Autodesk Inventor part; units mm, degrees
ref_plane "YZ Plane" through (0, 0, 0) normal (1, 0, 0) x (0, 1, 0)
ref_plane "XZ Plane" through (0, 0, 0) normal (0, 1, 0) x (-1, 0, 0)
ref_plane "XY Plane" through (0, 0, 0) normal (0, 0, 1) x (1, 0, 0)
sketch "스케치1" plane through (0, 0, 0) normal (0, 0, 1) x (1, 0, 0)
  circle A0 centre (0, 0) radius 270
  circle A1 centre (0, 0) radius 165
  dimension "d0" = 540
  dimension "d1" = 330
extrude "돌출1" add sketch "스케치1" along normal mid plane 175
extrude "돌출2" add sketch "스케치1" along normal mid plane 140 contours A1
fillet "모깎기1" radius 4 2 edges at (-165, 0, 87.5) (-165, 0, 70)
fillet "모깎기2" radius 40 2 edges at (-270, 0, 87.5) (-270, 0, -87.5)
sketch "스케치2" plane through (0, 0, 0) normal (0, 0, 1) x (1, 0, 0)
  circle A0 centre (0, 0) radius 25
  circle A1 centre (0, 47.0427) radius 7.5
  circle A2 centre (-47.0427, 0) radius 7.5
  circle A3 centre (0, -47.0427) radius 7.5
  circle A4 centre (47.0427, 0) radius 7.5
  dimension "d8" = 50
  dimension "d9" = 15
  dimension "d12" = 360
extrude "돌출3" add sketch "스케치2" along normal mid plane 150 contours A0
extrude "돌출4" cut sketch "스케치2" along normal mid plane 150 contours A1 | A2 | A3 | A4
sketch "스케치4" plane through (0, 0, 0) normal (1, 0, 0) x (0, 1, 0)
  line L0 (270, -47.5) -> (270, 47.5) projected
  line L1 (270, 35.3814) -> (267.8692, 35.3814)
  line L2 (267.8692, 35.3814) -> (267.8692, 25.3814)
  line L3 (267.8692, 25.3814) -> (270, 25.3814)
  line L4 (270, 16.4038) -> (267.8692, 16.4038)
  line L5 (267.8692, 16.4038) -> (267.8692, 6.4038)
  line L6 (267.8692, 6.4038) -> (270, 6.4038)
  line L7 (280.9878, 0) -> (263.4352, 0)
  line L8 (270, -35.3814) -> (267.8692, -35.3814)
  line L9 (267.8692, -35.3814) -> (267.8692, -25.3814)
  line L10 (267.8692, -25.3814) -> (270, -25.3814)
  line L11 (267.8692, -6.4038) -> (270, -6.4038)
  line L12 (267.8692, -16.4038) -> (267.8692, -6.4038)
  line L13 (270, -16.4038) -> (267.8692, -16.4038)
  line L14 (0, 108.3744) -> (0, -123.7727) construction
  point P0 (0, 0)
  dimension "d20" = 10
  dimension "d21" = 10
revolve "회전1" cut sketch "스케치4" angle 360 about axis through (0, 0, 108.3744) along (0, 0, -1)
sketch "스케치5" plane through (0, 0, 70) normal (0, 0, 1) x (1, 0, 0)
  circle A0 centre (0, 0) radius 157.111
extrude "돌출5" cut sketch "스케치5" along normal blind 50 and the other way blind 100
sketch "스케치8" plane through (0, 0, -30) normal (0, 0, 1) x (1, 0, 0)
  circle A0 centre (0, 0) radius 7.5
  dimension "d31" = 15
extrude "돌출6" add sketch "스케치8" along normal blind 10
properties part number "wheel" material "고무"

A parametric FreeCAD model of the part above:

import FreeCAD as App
import Part
import Sketcher


def edges_at(feature, points):
    """Names of the edges that pass closest to the given points."""
    edges = feature.Shape.Edges
    near = lambda p: min(range(len(edges)), key=lambda i: edges[i].distToShape(Part.Vertex(*p))[0])
    return sorted({f"Edge{near(p) + 1}" for p in points})


def add_polygon(sketch, points):
    """Adds a closed chain of lines whose ends are joined by coincident constraints."""
    first, n = sketch.GeometryCount, len(points)
    for a, b in zip(points, points[1:] + points[:1]):
        sketch.addGeometry(Part.LineSegment(App.Vector(*a, 0), App.Vector(*b, 0)), False)
    for i in range(n):
        sketch.addConstraint(Sketcher.Constraint("Coincident", first + i, 2, first + (i + 1) % n, 1))

doc = App.newDocument("Part")
body = doc.addObject("PartDesign::Body", "Body")

sketch1 = doc.addObject("Sketcher::SketchObject", "Sketch")
body.addObject(sketch1)
sketch1.AttachmentSupport = (doc.XY_Plane, [""])
sketch1.MapMode = "FlatFace"
sketch1.addGeometry([
    Part.Circle(App.Vector(0, 0, 0), App.Vector(0, 0, 1), 270),
    Part.Circle(App.Vector(0, 0, 0), App.Vector(0, 0, 1), 165),
], False)
sketch1.addConstraint([
    Sketcher.Constraint("Coincident", 0, 3, -1, 1),
    Sketcher.Constraint("Coincident", 1, 3, -1, 1),
    Sketcher.Constraint("Diameter", 0, 540.0),
    Sketcher.Constraint("Diameter", 1, 330.0),
])
pad1 = doc.addObject("PartDesign::Pad", "Pad")
body.addObject(pad1)
pad1.Profile = sketch1
pad1.Length = 175
pad1.Midplane = True

sketch2 = doc.addObject("Sketcher::SketchObject", "Sketch001")
body.addObject(sketch2)
sketch2.AttachmentSupport = (doc.XY_Plane, [""])
sketch2.MapMode = "FlatFace"
sketch2.addGeometry(Part.Circle(App.Vector(0, 0, 0), App.Vector(0, 0, 1), 165), False)
sketch2.addConstraint([
    Sketcher.Constraint("Coincident", 0, 3, -1, 1),
    Sketcher.Constraint("Diameter", 0, 330.0),
])
pad2 = doc.addObject("PartDesign::Pad", "Pad001")
body.addObject(pad2)
pad2.Profile = sketch2
pad2.Length = 140
pad2.Midplane = True
doc.recompute()

fillet = doc.addObject("PartDesign::Fillet", "Fillet")
body.addObject(fillet)
fillet.Base = (pad2, edges_at(pad2, [(-165, 0, 87.5), (-165, 0, 70)]))
fillet.Radius = 4
doc.recompute()

fillet2 = doc.addObject("PartDesign::Fillet", "Fillet001")
body.addObject(fillet2)
fillet2.Base = (fillet, edges_at(fillet, [(-270, 0, 87.5), (-270, 0, -87.5)]))
fillet2.Radius = 40

sketch3 = doc.addObject("Sketcher::SketchObject", "Sketch002")
body.addObject(sketch3)
sketch3.AttachmentSupport = (doc.XY_Plane, [""])
sketch3.MapMode = "FlatFace"
sketch3.addGeometry(Part.Circle(App.Vector(0, 0, 0), App.Vector(0, 0, 1), 25), False)
sketch3.addConstraint([
    Sketcher.Constraint("Coincident", 0, 3, -1, 1),
    Sketcher.Constraint("Diameter", 0, 50.0),
])
pad3 = doc.addObject("PartDesign::Pad", "Pad002")
body.addObject(pad3)
pad3.Profile = sketch3
pad3.Length = 150
pad3.Midplane = True

sketch4 = doc.addObject("Sketcher::SketchObject", "Sketch003")
body.addObject(sketch4)
sketch4.AttachmentSupport = (doc.XY_Plane, [""])
sketch4.MapMode = "FlatFace"
sketch4.addGeometry([
    Part.Circle(App.Vector(0, 47.0427, 0), App.Vector(0, 0, 1), 7.5),
    Part.Circle(App.Vector(-47.0427, 0, 0), App.Vector(0, 0, 1), 7.5),
    Part.Circle(App.Vector(0, -47.0427, 0), App.Vector(0, 0, 1), 7.5),
    Part.Circle(App.Vector(47.0427, 0, 0), App.Vector(0, 0, 1), 7.5),
], False)
sketch4.addConstraint([
    Sketcher.Constraint("Equal", 0, 1),
    Sketcher.Constraint("Equal", 1, 2),
    Sketcher.Constraint("Equal", 2, 3),
    Sketcher.Constraint("Symmetric", 0, 3, 2, 3, -1, 1),
    Sketcher.Constraint("Symmetric", 1, 3, 3, 3, -1, 1),
    Sketcher.Constraint("PointOnObject", 0, 3, -2),
    Sketcher.Constraint("PointOnObject", 1, 3, -1),
    Sketcher.Constraint("Diameter", 0, 15.0),
    Sketcher.Constraint("DistanceY", -1, 1, 0, 3, 47.0427),
    Sketcher.Constraint("DistanceX", 1, 3, -1, 1, 47.0427),
])
pocket1 = doc.addObject("PartDesign::Pocket", "Pocket")
body.addObject(pocket1)
pocket1.Profile = sketch4
pocket1.Length = 150
pocket1.Midplane = True

sketch5 = doc.addObject("Sketcher::SketchObject", "Sketch004")
body.addObject(sketch5)
sketch5.AttachmentSupport = (doc.YZ_Plane, [""])
sketch5.MapMode = "FlatFace"
add_polygon(sketch5, [(267.8692, -35.3814), (270, -35.3814), (270, -25.3814), (267.8692, -25.3814)])
add_polygon(sketch5, [(267.8692, 25.3814), (270, 25.3814), (270, 35.3814), (267.8692, 35.3814)])
add_polygon(sketch5, [(267.8692, 6.4038), (270, 6.4038), (270, 16.4038), (267.8692, 16.4038)])
add_polygon(sketch5, [(267.8692, -16.4038), (270, -16.4038), (270, -6.4038), (267.8692, -6.4038)])
sketch5.addConstraint([
    Sketcher.Constraint("Horizontal", 0),
    Sketcher.Constraint("Vertical", 1),
    Sketcher.Constraint("Horizontal", 2),
    Sketcher.Constraint("Vertical", 3),
    Sketcher.Constraint("Horizontal", 4),
    Sketcher.Constraint("Vertical", 5),
    Sketcher.Constraint("Horizontal", 6),
    Sketcher.Constraint("Vertical", 7),
    Sketcher.Constraint("Horizontal", 8),
    Sketcher.Constraint("Vertical", 9),
    Sketcher.Constraint("Horizontal", 10),
    Sketcher.Constraint("Vertical", 11),
    Sketcher.Constraint("Horizontal", 12),
    Sketcher.Constraint("Vertical", 13),
    Sketcher.Constraint("Horizontal", 14),
    Sketcher.Constraint("Vertical", 15),
    Sketcher.Constraint("Symmetric", 1, 2, 4, 2, -1),
    Sketcher.Constraint("Symmetric", 3, 2, 6, 2, -1),
    Sketcher.Constraint("Symmetric", 9, 2, 12, 2, -1),
    Sketcher.Constraint("Symmetric", 11, 2, 14, 2, -1),
    Sketcher.Constraint("Vertical", 5, 2, 8, 2),
    Sketcher.Constraint("Vertical", 7, 2, 10, 2),
    Sketcher.Constraint("Equal", 7, 9),
    Sketcher.Constraint("DistanceY", 1, 1, 1, 2, 10.0),
    Sketcher.Constraint("DistanceX", -1, 1, 0, 2, 270.0),
    Sketcher.Constraint("DistanceX", 0, 1, 0, 2, 2.1308),
    Sketcher.Constraint("DistanceY", 0, 2, -1, 1, 35.3814),
    Sketcher.Constraint("DistanceY", -1, 1, 8, 2, 6.4038),
])
groove = doc.addObject("PartDesign::Groove", "Groove")
body.addObject(groove)
groove.Profile = sketch5
groove.ReferenceAxis = (sketch5, ["V_Axis"])
groove.Angle = 360

sketch6 = doc.addObject("Sketcher::SketchObject", "Sketch005")
body.addObject(sketch6)
sketch6.AttachmentSupport = (doc.XY_Plane, [""])
sketch6.MapMode = "FlatFace"
sketch6.AttachmentOffset = App.Placement(App.Vector(0, 0, 70), App.Rotation())
sketch6.addGeometry(Part.Circle(App.Vector(0, 0, 0), App.Vector(0, 0, 1), 157.111), False)
sketch6.addConstraint([
    Sketcher.Constraint("Coincident", 0, 3, -1, 1),
    Sketcher.Constraint("Diameter", 0, 314.222),
])
pocket2 = doc.addObject("PartDesign::Pocket", "Pocket001")
body.addObject(pocket2)
pocket2.Profile = sketch6
pocket2.Type = "TwoLengths"
pocket2.Length = 50
pocket2.Length2 = 100
pocket2.Reversed = True

sketch7 = doc.addObject("Sketcher::SketchObject", "Sketch006")
body.addObject(sketch7)
sketch7.AttachmentSupport = (doc.XY_Plane, [""])
sketch7.MapMode = "FlatFace"
sketch7.AttachmentOffset = App.Placement(App.Vector(0, 0, -30), App.Rotation())
sketch7.addGeometry(Part.Circle(App.Vector(0, 0, 0), App.Vector(0, 0, 1), 7.5), False)
sketch7.addConstraint([
    Sketcher.Constraint("Coincident", 0, 3, -1, 1),
    Sketcher.Constraint("Diameter", 0, 15.0),
])
pad4 = doc.addObject("PartDesign::Pad", "Pad003")
body.addObject(pad4)
pad4.Profile = sketch7
pad4.Length = 10

doc.recompute()
